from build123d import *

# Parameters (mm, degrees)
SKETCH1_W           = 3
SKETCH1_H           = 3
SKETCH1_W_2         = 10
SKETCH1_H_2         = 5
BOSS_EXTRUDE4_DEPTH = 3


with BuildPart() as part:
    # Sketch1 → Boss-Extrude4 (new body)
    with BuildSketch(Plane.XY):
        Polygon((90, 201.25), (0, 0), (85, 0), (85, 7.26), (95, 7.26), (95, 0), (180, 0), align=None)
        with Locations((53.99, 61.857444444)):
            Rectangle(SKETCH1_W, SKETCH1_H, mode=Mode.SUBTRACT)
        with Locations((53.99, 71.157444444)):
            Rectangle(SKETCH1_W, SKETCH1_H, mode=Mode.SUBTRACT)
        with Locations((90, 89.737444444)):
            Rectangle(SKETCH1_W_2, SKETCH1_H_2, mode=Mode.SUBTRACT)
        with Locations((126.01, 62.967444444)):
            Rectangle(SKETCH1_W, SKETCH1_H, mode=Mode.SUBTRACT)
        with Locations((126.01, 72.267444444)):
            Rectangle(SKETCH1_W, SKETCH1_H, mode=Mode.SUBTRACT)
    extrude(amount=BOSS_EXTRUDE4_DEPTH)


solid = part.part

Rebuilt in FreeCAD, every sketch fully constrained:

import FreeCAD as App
import Part
import Sketcher


def add_polygon(sketch, points):
    """Adds a closed chain of lines whose ends are joined by coincident constraints."""
    first, n = sketch.GeometryCount, len(points)
    for a, b in zip(points, points[1:] + points[:1]):
        sketch.addGeometry(Part.LineSegment(App.Vector(*a, 0), App.Vector(*b, 0)), False)
    for i in range(n):
        sketch.addConstraint(Sketcher.Constraint("Coincident", first + i, 2, first + (i + 1) % n, 1))

doc = App.newDocument("Part")
body = doc.addObject("PartDesign::Body", "Body")

sketch1 = doc.addObject("Sketcher::SketchObject", "Sketch")
body.addObject(sketch1)
sketch1.AttachmentSupport = (doc.XY_Plane, [""])
sketch1.MapMode = "FlatFace"
add_polygon(sketch1, [(90, 201.2), (0, 0), (85, 0), (85, 7.3), (95, 7.3), (95, 0), (180, 0)])
add_polygon(sketch1, [(55.5, 60.4), (52.5, 60.4), (52.5, 63.4), (55.5, 63.4)])
add_polygon(sketch1, [(55.5, 69.7), (52.5, 69.7), (52.5, 72.7), (55.5, 72.7)])
add_polygon(sketch1, [(127.5, 61.5), (124.5, 61.5), (124.5, 64.5), (127.5, 64.5)])
add_polygon(sketch1, [(127.5, 70.8), (124.5, 70.8), (124.5, 73.8), (127.5, 73.8)])
add_polygon(sketch1, [(95, 87.2), (85, 87.2), (85, 92.2), (95, 92.2)])
sketch1.addConstraint([
    Sketcher.Constraint("Horizontal", 1),
    Sketcher.Constraint("Vertical", 2),
    Sketcher.Constraint("Horizontal", 3),
    Sketcher.Constraint("Vertical", 4),
    Sketcher.Constraint("Horizontal", 5),
    Sketcher.Constraint("Horizontal", 7),
    Sketcher.Constraint("Vertical", 8),
    Sketcher.Constraint("Horizontal", 9),
    Sketcher.Constraint("Vertical", 10),
    Sketcher.Constraint("Horizontal", 11),
    Sketcher.Constraint("Vertical", 12),
    Sketcher.Constraint("Horizontal", 13),
    Sketcher.Constraint("Vertical", 14),
    Sketcher.Constraint("Horizontal", 15),
    Sketcher.Constraint("Vertical", 16),
    Sketcher.Constraint("Horizontal", 17),
    Sketcher.Constraint("Vertical", 18),
    Sketcher.Constraint("Horizontal", 19),
    Sketcher.Constraint("Vertical", 20),
    Sketcher.Constraint("Horizontal", 21),
    Sketcher.Constraint("Vertical", 22),
    Sketcher.Constraint("Horizontal", 23),
    Sketcher.Constraint("Vertical", 24),
    Sketcher.Constraint("Horizontal", 25),
    Sketcher.Constraint("Vertical", 26),
    Sketcher.Constraint("Coincident", 0, 2, -1, 1),
    Sketcher.Constraint("PointOnObject", 4, 2, -1),
    Sketcher.Constraint("Vertical", 8, 2, 11, 2),
    Sketcher.Constraint("Vertical", 10, 2, 13, 2),
    Sketcher.Constraint("Vertical", 16, 2, 19, 2),
    Sketcher.Constraint("Vertical", 18, 2, 21, 2),
    Sketcher.Constraint("Vertical", 2, 2, 23, 2),
    Sketcher.Constraint("Vertical", 4, 2, 25, 2),
    Sketcher.Constraint("Equal", 1, 5),
    Sketcher.Constraint("Equal", 13, 15),
    Sketcher.Constraint("Equal", 21, 8),
    Sketcher.Constraint("Equal", 10, 12),
    Sketcher.Constraint("Equal", 14, 16),
    Sketcher.Constraint("Equal", 18, 20),
    Sketcher.Constraint("Equal", 0, 6),
    Sketcher.Constraint("DistanceX", 1, 1, 1, 2, 85.0),
    Sketcher.Constraint("DistanceX", 3, 1, 3, 2, 10.0),
    Sketcher.Constraint("DistanceX", 7, 2, 7, 1, 3.0),
    Sketcher.Constraint("DistanceY", 24, 1, 24, 2, 5.0),
    Sketcher.Constraint("DistanceY", 2, 1, 2, 2, 7.26),
    Sketcher.Constraint("DistanceY", 8, 2, 11, 2, 6.3),
    Sketcher.Constraint("DistanceY", 16, 2, 19, 2, 6.3),
    Sketcher.Constraint("DistanceY", -1, 1, 6, 2, 201.25),
    Sketcher.Constraint("DistanceX", -1, 1, 7, 2, 52.49),
    Sketcher.Constraint("DistanceX", -1, 1, 15, 2, 124.51),
    Sketcher.Constraint("DistanceY", 10, 2, 15, 2, 1.11),
    Sketcher.Constraint("DistanceY", 13, 2, 23, 2, 14.58),
    Sketcher.Constraint("DistanceY", -1, 1, 7, 2, 60.357444),
])
pad1 = doc.addObject("PartDesign::Pad", "Pad")
body.addObject(pad1)
pad1.Profile = sketch1
pad1.Length = 3

doc.recompute()
